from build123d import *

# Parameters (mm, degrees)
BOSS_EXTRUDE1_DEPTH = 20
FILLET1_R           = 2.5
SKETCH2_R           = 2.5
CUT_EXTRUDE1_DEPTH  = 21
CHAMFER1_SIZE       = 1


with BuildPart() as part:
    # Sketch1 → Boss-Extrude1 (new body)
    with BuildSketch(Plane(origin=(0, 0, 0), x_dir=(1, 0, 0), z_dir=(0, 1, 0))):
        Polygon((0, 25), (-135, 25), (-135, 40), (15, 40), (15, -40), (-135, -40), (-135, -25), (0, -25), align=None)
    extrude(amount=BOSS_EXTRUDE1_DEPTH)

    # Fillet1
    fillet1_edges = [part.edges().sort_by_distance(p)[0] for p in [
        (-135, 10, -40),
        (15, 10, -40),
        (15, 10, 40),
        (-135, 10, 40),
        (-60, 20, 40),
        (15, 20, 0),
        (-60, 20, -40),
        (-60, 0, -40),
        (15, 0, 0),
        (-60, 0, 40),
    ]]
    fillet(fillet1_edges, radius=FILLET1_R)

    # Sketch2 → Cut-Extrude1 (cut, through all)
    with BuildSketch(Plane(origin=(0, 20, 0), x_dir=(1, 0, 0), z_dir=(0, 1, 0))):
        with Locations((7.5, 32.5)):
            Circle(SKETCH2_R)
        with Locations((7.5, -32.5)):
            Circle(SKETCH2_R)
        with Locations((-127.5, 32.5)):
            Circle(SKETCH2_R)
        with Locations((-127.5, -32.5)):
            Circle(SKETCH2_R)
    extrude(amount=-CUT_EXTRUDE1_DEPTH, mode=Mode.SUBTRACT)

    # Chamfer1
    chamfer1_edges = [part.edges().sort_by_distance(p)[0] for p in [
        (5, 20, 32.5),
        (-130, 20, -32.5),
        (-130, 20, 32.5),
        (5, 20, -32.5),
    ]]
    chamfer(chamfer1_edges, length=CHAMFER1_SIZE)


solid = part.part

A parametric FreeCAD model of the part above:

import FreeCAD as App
import Part
import Sketcher
from FreeCAD import Vector


def edges_at(feature, points):
    """Names of the edges that pass closest to the given points."""
    edges = feature.Shape.Edges
    near = lambda p: min(range(len(edges)), key=lambda i: edges[i].distToShape(Part.Vertex(*p))[0])
    return sorted({f"Edge{near(p) + 1}" for p in points})

doc = App.newDocument("Part")
body = doc.addObject("PartDesign::Body", "Body")

# Sketch on XZ plane
sketch1 = doc.addObject("Sketcher::SketchObject", "Sketch")
body.addObject(sketch1)
sketch1.AttachmentSupport = (doc.XZ_Plane, [""])
sketch1.MapMode = "FlatFace"
sketch1.addGeometry([
    Part.LineSegment(Vector(-135, -25, 0), Vector(0, -25, 0)),  # 0
    Part.LineSegment(Vector(0, -25, 0), Vector(0, 25, 0)),  # 1
    Part.LineSegment(Vector(0, 25, 0), Vector(-135, 25, 0)),  # 2
    Part.LineSegment(Vector(-135, 25, 0), Vector(-135, 40, 0)),  # 3
    Part.LineSegment(Vector(-135, 40, 0), Vector(15, 40, 0)),  # 4
    Part.LineSegment(Vector(15, 40, 0), Vector(15, -40, 0)),  # 5
    Part.LineSegment(Vector(15, -40, 0), Vector(-135, -40, 0)),  # 6
    Part.LineSegment(Vector(-135, -40, 0), Vector(-135, -25, 0)),  # 7
], False)
sketch1.addConstraint([
    Sketcher.Constraint("Coincident", 0, 2, 1, 1),
    Sketcher.Constraint("Coincident", 1, 2, 2, 1),
    Sketcher.Constraint("Coincident", 2, 2, 3, 1),
    Sketcher.Constraint("Coincident", 3, 2, 4, 1),
    Sketcher.Constraint("Coincident", 4, 2, 5, 1),
    Sketcher.Constraint("Coincident", 5, 2, 6, 1),
    Sketcher.Constraint("Coincident", 6, 2, 7, 1),
    Sketcher.Constraint("Coincident", 7, 2, 0, 1),
    Sketcher.Constraint("Horizontal", 0),
    Sketcher.Constraint("Vertical", 1),
    Sketcher.Constraint("Horizontal", 2),
    Sketcher.Constraint("Vertical", 3),
    Sketcher.Constraint("Horizontal", 4),
    Sketcher.Constraint("Vertical", 5),
    Sketcher.Constraint("Horizontal", 6),
    Sketcher.Constraint("Vertical", 7),
    Sketcher.Constraint("Symmetric", 0, 2, 1, 2, -1, 1),
    Sketcher.Constraint("Symmetric", 3, 2, 6, 2, -1),
    Sketcher.Constraint("DistanceX", 0, 1, 0, 2, 135.0),
    Sketcher.Constraint("DistanceX", 4, 1, 4, 2, 150.0),
    Sketcher.Constraint("DistanceY", 1, 1, 1, 2, 50.0),
    Sketcher.Constraint("DistanceY", 3, 1, 3, 2, 15.0),
])
pad1 = doc.addObject("PartDesign::Pad", "Pad")
body.addObject(pad1)
pad1.Profile = sketch1
pad1.Length = 20
pad1.Reversed = True
doc.recompute()

fillet = doc.addObject("PartDesign::Fillet", "Fillet")
body.addObject(fillet)
fillet.Base = (pad1, edges_at(pad1, [
    (-135, 10, -40),
    (15, 10, -40),
    (15, 10, 40),
    (-135, 10, 40),
    (-60, 20, 40),
    (15, 20, 0),
    (-60, 20, -40),
    (-60, 0, -40),
    (15, 0, 0),
    (-60, 0, 40),
]))
fillet.Radius = 2.5

# Sketch on XZ plane
sketch2 = doc.addObject("Sketcher::SketchObject", "Sketch001")
body.addObject(sketch2)
sketch2.AttachmentSupport = (doc.XZ_Plane, [""])
sketch2.MapMode = "FlatFace"
sketch2.AttachmentOffset = App.Placement(Vector(0, 0, -20), App.Rotation())
sketch2.addGeometry([
    Part.Circle(Vector(7.5, -32.5, 0), Vector(0, 0, 1), 2.5),
    Part.Circle(Vector(7.5, 32.5, 0), Vector(0, 0, 1), 2.5),
    Part.Circle(Vector(-127.5, -32.5, 0), Vector(0, 0, 1), 2.5),
    Part.Circle(Vector(-127.5, 32.5, 0), Vector(0, 0, 1), 2.5),
], False)
sketch2.addConstraint([
    Sketcher.Constraint("Equal", 0, 1),
    Sketcher.Constraint("Equal", 1, 2),
    Sketcher.Constraint("Equal", 2, 3),
    Sketcher.Constraint("Symmetric", 0, 3, 1, 3, -1),
    Sketcher.Constraint("Symmetric", 2, 3, 3, 3, -1),
    Sketcher.Constraint("Horizontal", 0, 3, 2, 3),
    Sketcher.Constraint("Diameter", 0, 5.0),
    Sketcher.Constraint("DistanceY", 0, 3, 1, 3, 65.0),
    Sketcher.Constraint("DistanceX", 2, 3, 0, 3, 135.0),
    Sketcher.Constraint("DistanceX", -1, 1, 0, 3, 7.5),
])
pocket1 = doc.addObject("PartDesign::Pocket", "Pocket")
body.addObject(pocket1)
pocket1.Profile = sketch2
pocket1.Type = "ThroughAll"
pocket1.Reversed = True
doc.recompute()

chamfer = doc.addObject("PartDesign::Chamfer", "Chamfer")
body.addObject(chamfer)
chamfer.Base = (pocket1, edges_at(pocket1, [
    (5, 20, 32.5),
    (-130, 20, -32.5),
    (-130, 20, 32.5),
    (5, 20, -32.5),
]))
chamfer.Size = 1

doc.recompute()
